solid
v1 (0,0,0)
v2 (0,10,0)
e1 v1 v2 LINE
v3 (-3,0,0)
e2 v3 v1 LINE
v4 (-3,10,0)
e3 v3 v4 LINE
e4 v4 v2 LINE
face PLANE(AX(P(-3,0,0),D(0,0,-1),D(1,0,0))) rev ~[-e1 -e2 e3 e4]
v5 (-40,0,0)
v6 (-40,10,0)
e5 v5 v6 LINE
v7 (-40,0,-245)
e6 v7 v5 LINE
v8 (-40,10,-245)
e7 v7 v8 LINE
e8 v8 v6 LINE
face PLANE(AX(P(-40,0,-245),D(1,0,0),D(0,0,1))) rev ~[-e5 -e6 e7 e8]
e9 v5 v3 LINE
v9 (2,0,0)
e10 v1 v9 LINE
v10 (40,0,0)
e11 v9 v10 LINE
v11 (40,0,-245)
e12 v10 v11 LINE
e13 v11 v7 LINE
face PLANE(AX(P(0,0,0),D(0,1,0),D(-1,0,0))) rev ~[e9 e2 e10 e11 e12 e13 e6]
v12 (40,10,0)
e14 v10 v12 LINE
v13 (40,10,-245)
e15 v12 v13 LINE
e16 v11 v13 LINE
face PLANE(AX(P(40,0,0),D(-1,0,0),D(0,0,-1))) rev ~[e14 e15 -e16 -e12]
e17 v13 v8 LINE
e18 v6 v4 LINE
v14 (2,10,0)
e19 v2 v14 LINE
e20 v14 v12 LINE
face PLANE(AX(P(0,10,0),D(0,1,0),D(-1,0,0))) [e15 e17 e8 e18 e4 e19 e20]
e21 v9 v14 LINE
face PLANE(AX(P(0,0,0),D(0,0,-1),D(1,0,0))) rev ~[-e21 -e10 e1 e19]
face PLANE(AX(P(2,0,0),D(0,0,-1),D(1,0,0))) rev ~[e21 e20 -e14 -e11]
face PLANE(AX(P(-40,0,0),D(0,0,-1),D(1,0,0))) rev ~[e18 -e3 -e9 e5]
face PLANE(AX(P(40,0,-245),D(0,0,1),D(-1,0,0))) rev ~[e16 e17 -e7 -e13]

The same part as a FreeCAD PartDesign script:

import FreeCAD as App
import Part
import Sketcher
from FreeCAD import Vector


def add_polygon(sketch, points):
    """Adds a closed chain of lines whose ends are joined by coincident constraints."""
    first, n = sketch.GeometryCount, len(points)
    for a, b in zip(points, points[1:] + points[:1]):
        sketch.addGeometry(Part.LineSegment(App.Vector(*a, 0), App.Vector(*b, 0)), False)
    for i in range(n):
        sketch.addConstraint(Sketcher.Constraint("Coincident", first + i, 2, first + (i + 1) % n, 1))

doc = App.newDocument("Part")
body = doc.addObject("PartDesign::Body", "Body")

sketch1 = body.newObject("Sketcher::SketchObject", "Sketch")
sketch1.AttachmentSupport = (doc.getObject("XZ_Plane"), [""])
sketch1.MapMode = "FlatFace"
add_polygon(sketch1, [(-40, -245), (-40, 0), (40, 0), (40, -245)])
sketch1.addConstraint([
    Sketcher.Constraint("Vertical", 0),
    Sketcher.Constraint("Horizontal", 1),
    Sketcher.Constraint("Vertical", 2),
    Sketcher.Constraint("Horizontal", 3),
    Sketcher.Constraint("Symmetric", 0, 2, 1, 2, -1, 1),
    Sketcher.Constraint("DistanceX", 1, 1, 1, 2, 80.0),
    Sketcher.Constraint("DistanceY", 0, 1, 0, 2, 245.0),
])
pad1 = body.newObject("PartDesign::Pad", "Pad")
pad1.Profile = sketch1
pad1.Length = 10
pad1.Reversed = True

doc.recompute()
